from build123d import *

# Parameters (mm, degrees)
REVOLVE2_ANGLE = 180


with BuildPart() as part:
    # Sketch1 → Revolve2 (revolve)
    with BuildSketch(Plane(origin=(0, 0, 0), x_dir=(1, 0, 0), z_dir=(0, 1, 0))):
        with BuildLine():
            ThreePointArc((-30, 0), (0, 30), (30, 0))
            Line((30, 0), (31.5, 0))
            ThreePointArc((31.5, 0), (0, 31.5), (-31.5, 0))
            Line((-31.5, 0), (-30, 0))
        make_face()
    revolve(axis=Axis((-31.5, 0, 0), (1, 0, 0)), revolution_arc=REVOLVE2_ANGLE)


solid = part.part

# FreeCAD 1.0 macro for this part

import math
import FreeCAD as App
import Part
import Sketcher
from FreeCAD import Vector

doc = App.newDocument("Part")
body = doc.addObject("PartDesign::Body", "Body")

sketch1 = doc.addObject("Sketcher::SketchObject", "Sketch")
body.addObject(sketch1)
sketch1.AttachmentSupport = (doc.XZ_Plane, [""])
sketch1.MapMode = "FlatFace"
sketch1.addGeometry(Part.ArcOfCircle(Part.Circle(Vector(0, 0, 0), Vector(0, 0, 1), 30), math.radians(180), math.radians(360)), False)
sketch1.addGeometry(Part.LineSegment(Vector(30, 0, 0), Vector(31.5, 0, 0)), False)
sketch1.addGeometry(Part.ArcOfCircle(Part.Circle(Vector(0, 0, 0), Vector(0, 0, 1), 31.5), math.radians(180), math.radians(360)), False)
sketch1.addGeometry(Part.LineSegment(Vector(-31.5, 0, 0), Vector(-30, 0, 0)), False)
sketch1.addConstraint(Sketcher.Constraint("Coincident", 0, 2, 1, 1))
sketch1.addConstraint(Sketcher.Constraint("Coincident", 1, 2, 2, 2))
sketch1.addConstraint(Sketcher.Constraint("Coincident", 2, 1, 3, 1))
sketch1.addConstraint(Sketcher.Constraint("Coincident", 3, 2, 0, 1))
sketch1.addConstraint(Sketcher.Constraint("Horizontal", 1))
sketch1.addConstraint(Sketcher.Constraint("Horizontal", 3))
sketch1.addConstraint(Sketcher.Constraint("Coincident", 0, 3, -1, 1))
sketch1.addConstraint(Sketcher.Constraint("Coincident", 2, 3, -1, 1))
sketch1.addConstraint(Sketcher.Constraint("PointOnObject", 0, 2, -1))
sketch1.addConstraint(Sketcher.Constraint("PointOnObject", 2, 1, -1))
sketch1.addConstraint(Sketcher.Constraint("Radius", 0, 30.0))
sketch1.addConstraint(Sketcher.Constraint("Radius", 2, 31.5))
revolution = doc.addObject("PartDesign::Revolution", "Revolution")
body.addObject(revolution)
revolution.Profile = sketch1
revolution.ReferenceAxis = (sketch1, ["H_Axis"])
revolution.Angle = 180

doc.recompute()
